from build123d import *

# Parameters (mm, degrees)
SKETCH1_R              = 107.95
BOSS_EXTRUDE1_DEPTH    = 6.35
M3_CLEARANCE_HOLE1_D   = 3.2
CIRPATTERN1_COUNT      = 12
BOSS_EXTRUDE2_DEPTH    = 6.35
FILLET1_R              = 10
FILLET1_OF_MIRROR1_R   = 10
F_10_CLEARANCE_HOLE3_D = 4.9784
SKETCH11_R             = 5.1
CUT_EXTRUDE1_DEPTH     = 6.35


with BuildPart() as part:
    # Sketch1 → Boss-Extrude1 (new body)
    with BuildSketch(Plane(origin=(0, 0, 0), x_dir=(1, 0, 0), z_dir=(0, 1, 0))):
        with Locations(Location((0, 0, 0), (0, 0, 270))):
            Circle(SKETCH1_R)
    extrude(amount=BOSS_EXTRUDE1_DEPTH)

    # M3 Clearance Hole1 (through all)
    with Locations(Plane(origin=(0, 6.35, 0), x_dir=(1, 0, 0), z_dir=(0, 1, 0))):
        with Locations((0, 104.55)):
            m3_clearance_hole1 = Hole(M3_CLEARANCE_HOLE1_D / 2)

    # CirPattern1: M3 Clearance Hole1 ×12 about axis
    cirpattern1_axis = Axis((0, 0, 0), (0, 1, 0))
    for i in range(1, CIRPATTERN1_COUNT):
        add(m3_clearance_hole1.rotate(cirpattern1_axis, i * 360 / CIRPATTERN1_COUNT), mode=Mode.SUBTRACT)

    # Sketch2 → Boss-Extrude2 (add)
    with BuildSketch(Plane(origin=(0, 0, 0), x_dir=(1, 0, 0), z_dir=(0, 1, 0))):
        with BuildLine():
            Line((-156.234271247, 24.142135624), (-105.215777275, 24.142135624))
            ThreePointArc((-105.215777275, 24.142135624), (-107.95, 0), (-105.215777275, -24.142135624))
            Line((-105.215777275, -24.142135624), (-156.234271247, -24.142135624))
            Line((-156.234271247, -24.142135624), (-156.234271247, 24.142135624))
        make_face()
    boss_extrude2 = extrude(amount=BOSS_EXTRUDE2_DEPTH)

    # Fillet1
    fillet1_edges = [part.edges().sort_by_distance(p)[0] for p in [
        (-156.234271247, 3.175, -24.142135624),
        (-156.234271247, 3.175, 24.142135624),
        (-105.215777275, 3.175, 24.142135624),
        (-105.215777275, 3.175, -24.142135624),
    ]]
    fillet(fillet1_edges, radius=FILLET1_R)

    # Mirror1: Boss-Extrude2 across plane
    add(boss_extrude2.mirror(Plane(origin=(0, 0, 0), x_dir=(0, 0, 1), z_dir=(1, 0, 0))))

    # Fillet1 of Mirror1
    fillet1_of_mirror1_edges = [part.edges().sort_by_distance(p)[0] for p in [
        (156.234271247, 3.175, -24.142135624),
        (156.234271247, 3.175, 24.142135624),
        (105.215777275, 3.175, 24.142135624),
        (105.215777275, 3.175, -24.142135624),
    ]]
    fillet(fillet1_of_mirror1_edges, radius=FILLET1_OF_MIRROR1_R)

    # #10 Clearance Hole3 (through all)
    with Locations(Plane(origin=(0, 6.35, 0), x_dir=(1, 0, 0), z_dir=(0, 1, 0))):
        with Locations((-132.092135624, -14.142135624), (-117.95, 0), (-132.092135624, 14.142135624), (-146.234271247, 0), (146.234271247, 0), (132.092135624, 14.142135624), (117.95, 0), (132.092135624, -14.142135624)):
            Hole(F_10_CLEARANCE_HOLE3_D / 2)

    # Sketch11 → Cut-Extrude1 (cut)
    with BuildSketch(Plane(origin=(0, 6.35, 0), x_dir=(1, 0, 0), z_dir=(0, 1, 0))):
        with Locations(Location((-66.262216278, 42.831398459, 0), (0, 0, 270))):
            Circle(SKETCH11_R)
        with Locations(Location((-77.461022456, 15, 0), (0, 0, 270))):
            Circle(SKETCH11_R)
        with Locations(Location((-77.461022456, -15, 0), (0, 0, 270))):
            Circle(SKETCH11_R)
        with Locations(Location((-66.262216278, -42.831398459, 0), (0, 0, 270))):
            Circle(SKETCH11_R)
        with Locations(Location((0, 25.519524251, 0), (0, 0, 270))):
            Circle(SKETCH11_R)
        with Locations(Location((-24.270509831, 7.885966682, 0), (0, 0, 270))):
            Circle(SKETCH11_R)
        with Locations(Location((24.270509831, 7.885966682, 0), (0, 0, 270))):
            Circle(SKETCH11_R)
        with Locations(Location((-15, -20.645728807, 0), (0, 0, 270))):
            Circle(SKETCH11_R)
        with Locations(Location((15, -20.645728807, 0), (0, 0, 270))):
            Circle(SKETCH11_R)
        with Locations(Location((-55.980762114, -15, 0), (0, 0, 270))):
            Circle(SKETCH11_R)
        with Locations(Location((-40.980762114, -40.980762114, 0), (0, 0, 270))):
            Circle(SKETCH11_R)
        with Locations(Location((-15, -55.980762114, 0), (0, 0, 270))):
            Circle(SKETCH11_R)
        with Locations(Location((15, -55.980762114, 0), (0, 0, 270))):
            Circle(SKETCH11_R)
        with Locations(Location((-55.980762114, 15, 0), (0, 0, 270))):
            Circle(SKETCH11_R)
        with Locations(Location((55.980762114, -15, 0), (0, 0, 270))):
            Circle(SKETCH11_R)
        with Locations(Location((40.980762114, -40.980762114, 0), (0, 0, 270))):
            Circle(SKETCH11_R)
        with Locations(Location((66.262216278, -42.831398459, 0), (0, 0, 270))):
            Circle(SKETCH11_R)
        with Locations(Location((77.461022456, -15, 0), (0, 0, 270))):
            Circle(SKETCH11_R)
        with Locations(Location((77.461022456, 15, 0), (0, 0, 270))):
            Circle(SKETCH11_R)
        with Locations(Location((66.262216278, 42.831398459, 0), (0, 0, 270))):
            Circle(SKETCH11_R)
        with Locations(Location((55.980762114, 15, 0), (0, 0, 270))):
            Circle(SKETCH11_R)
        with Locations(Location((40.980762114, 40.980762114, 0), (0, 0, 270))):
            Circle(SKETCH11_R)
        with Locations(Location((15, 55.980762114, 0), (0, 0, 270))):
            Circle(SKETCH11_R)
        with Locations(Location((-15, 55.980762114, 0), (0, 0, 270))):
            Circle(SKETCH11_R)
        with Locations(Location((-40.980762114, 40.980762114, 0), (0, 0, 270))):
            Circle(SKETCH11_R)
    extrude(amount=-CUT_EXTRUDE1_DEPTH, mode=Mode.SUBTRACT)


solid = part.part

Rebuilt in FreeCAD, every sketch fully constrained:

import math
import FreeCAD as App
import Part
import Sketcher

V = App.Vector


def edges_at(feature, points):
    """Names of the edges that pass closest to the given points."""
    edges = feature.Shape.Edges
    near = lambda p: min(range(len(edges)), key=lambda i: edges[i].distToShape(Part.Vertex(*p))[0])
    return sorted({f"Edge{near(p) + 1}" for p in points})

doc = App.newDocument("Part")
body = doc.addObject("PartDesign::Body", "Body")

# Sketch on XZ plane
sketch1 = doc.addObject("Sketcher::SketchObject", "Sketch")
body.addObject(sketch1)
sketch1.AttachmentSupport = (doc.XZ_Plane, [""])
sketch1.MapMode = "FlatFace"
sketch1.addGeometry(Part.Circle(V(0, 0, 0), V(0, 0, 1), 108), False)
sketch1.addConstraint(Sketcher.Constraint("Coincident", 0, 3, -1, 1))
sketch1.addConstraint(Sketcher.Constraint("Diameter", 0, 215.9))
pad1 = doc.addObject("PartDesign::Pad", "Pad")
body.addObject(pad1)
pad1.Profile = sketch1
pad1.Length = 6.35
pad1.Reversed = True

# Sketch on XZ plane
sketch2 = doc.addObject("Sketcher::SketchObject", "Sketch001")
body.addObject(sketch2)
sketch2.AttachmentSupport = (doc.XZ_Plane, [""])
sketch2.MapMode = "FlatFace"
sketch2.AttachmentOffset = App.Placement(V(0, 0, -6.35), App.Rotation())
sketch2.addGeometry(Part.Circle(V(0, -104.5, 0), V(0, 0, 1), 1.6), False)
sketch2.addConstraint(Sketcher.Constraint("PointOnObject", 0, 3, -2))
sketch2.addConstraint(Sketcher.Constraint("Diameter", 0, 3.2))
sketch2.addConstraint(Sketcher.Constraint("DistanceY", 0, 3, -1, 1, 104.55))
doc.recompute()
hole = doc.addObject("PartDesign::Hole", "Hole")
body.addObject(hole)
hole.Profile = sketch2
hole.ThreadType = "None"
hole.Diameter = 3.2
hole.DepthType = "ThroughAll"
hole.Reversed = True
doc.recompute()

polarpattern = doc.addObject("PartDesign::PolarPattern", "PolarPattern")
body.addObject(polarpattern)
polarpattern.Originals = [hole]
polarpattern.Axis = (doc.Y_Axis, [""])
polarpattern.Angle = 360
polarpattern.Occurrences = 12
body.Tip = polarpattern

# Sketch on XZ plane
sketch3 = doc.addObject("Sketcher::SketchObject", "Sketch002")
body.addObject(sketch3)
sketch3.AttachmentSupport = (doc.XZ_Plane, [""])
sketch3.MapMode = "FlatFace"
sketch3.addGeometry(Part.LineSegment(V(-105, -24, 0), V(-156, -24, 0)), False)
sketch3.addGeometry(Part.LineSegment(V(-156, -24, 0), V(-156, 24, 0)), False)
sketch3.addGeometry(Part.LineSegment(V(-156, 24, 0), V(-105, 24, 0)), False)
sketch3.addGeometry(Part.ArcOfCircle(Part.Circle(V(0, 0, 0), V(0, 0, 1), 108), math.radians(167), math.radians(193)), False)
sketch3.addConstraint(Sketcher.Constraint("Coincident", 0, 2, 1, 1))
sketch3.addConstraint(Sketcher.Constraint("Coincident", 1, 2, 2, 1))
sketch3.addConstraint(Sketcher.Constraint("Coincident", 2, 2, 3, 1))
sketch3.addConstraint(Sketcher.Constraint("Coincident", 3, 2, 0, 1))
sketch3.addConstraint(Sketcher.Constraint("Horizontal", 0))
sketch3.addConstraint(Sketcher.Constraint("Vertical", 1))
sketch3.addConstraint(Sketcher.Constraint("Horizontal", 2))
sketch3.addConstraint(Sketcher.Constraint("Coincident", 3, 3, -1, 1))
sketch3.addConstraint(Sketcher.Constraint("Vertical", 2, 2, 3, 2))
sketch3.addConstraint(Sketcher.Constraint("Radius", 3, 107.95))
sketch3.addConstraint(Sketcher.Constraint("DistanceY", 1, 1, 1, 2, 48.284271))
sketch3.addConstraint(Sketcher.Constraint("DistanceX", 0, 2, 0, 1, 51.018494))
pad2 = doc.addObject("PartDesign::Pad", "Pad001")
body.addObject(pad2)
pad2.Profile = sketch3
pad2.Length = 6.35
pad2.Reversed = True
doc.recompute()

fillet = doc.addObject("PartDesign::Fillet", "Fillet")
body.addObject(fillet)
fillet.Base = (pad2, edges_at(pad2, [
    (-156.234, 3.175, -24.142),
    (-156.234, 3.175, 24.142),
    (-105.216, 3.175, 24.142),
    (-105.216, 3.175, -24.142),
]))
fillet.Radius = 10
doc.recompute()

mirrored = doc.addObject("PartDesign::Mirrored", "Mirrored")
body.addObject(mirrored)
mirrored.Originals = [pad2]
mirrored.MirrorPlane = (doc.YZ_Plane, [""])
body.Tip = mirrored
doc.recompute()

fillet2 = doc.addObject("PartDesign::Fillet", "Fillet001")
body.addObject(fillet2)
fillet2.Base = (mirrored, edges_at(mirrored, [
    (156.234, 3.175, -24.142),
    (156.234, 3.175, 24.142),
    (105.216, 3.175, 24.142),
    (105.216, 3.175, -24.142),
]))
fillet2.Radius = 10

# Sketch on XZ plane
sketch4 = doc.addObject("Sketcher::SketchObject", "Sketch003")
body.addObject(sketch4)
sketch4.AttachmentSupport = (doc.XZ_Plane, [""])
sketch4.MapMode = "FlatFace"
sketch4.AttachmentOffset = App.Placement(V(0, 0, -6.35), App.Rotation())
sketch4.addGeometry(Part.Circle(V(-132.1, 14.1, 0), V(0, 0, 1), 2.5), False)
sketch4.addGeometry(Part.Circle(V(-118, 0, 0), V(0, 0, 1), 2.5), False)
sketch4.addGeometry(Part.Circle(V(-132.1, -14.1, 0), V(0, 0, 1), 2.5), False)
sketch4.addGeometry(Part.Circle(V(-146.2, 0, 0), V(0, 0, 1), 2.5), False)
sketch4.addGeometry(Part.Circle(V(146.2, 0, 0), V(0, 0, 1), 2.5), False)
sketch4.addGeometry(Part.Circle(V(132.1, -14.1, 0), V(0, 0, 1), 2.5), False)
sketch4.addGeometry(Part.Circle(V(118, 0, 0), V(0, 0, 1), 2.5), False)
sketch4.addGeometry(Part.Circle(V(132.1, 14.1, 0), V(0, 0, 1), 2.5), False)
sketch4.addConstraint(Sketcher.Constraint("Equal", 0, 1))
sketch4.addConstraint(Sketcher.Constraint("Equal", 1, 2))
sketch4.addConstraint(Sketcher.Constraint("Equal", 2, 3))
sketch4.addConstraint(Sketcher.Constraint("Equal", 3, 4))
sketch4.addConstraint(Sketcher.Constraint("Equal", 4, 5))
sketch4.addConstraint(Sketcher.Constraint("Equal", 5, 6))
sketch4.addConstraint(Sketcher.Constraint("Equal", 6, 7))
sketch4.addConstraint(Sketcher.Constraint("Symmetric", 3, 3, 4, 3, -1, 1))
sketch4.addConstraint(Sketcher.Constraint("Symmetric", 0, 3, 5, 3, -1, 1))
sketch4.addConstraint(Sketcher.Constraint("Symmetric", 1, 3, 6, 3, -1, 1))
sketch4.addConstraint(Sketcher.Constraint("Symmetric", 2, 3, 7, 3, -1, 1))
sketch4.addConstraint(Sketcher.Constraint("Symmetric", 2, 3, 5, 3, -2))
sketch4.addConstraint(Sketcher.Constraint("PointOnObject", 1, 3, -1))
sketch4.addConstraint(Sketcher.Constraint("PointOnObject", 3, 3, -1))
sketch4.addConstraint(Sketcher.Constraint("Diameter", 0, 4.9784))
sketch4.addConstraint(Sketcher.Constraint("DistanceX", 1, 3, 6, 3, 235.9))
sketch4.addConstraint(Sketcher.Constraint("DistanceX", 3, 3, -1, 1, 146.234271))
sketch4.addConstraint(Sketcher.Constraint("DistanceY", 2, 3, 0, 3, 28.284271))
sketch4.addConstraint(Sketcher.Constraint("DistanceX", 2, 3, 5, 3, 264.184271))
doc.recompute()
hole2 = doc.addObject("PartDesign::Hole", "Hole001")
body.addObject(hole2)
hole2.Profile = sketch4
hole2.ThreadType = "None"
hole2.Diameter = 4.9784
hole2.DepthType = "ThroughAll"
hole2.Reversed = True

# Sketch on XZ plane
sketch5 = doc.addObject("Sketcher::SketchObject", "Sketch004")
body.addObject(sketch5)
sketch5.AttachmentSupport = (doc.XZ_Plane, [""])
sketch5.MapMode = "FlatFace"
sketch5.AttachmentOffset = App.Placement(V(0, 0, -6.35), App.Rotation())
sketch5.addGeometry(Part.Circle(V(-66, -43, 0), V(0, 0, 1), 5), False)
sketch5.addGeometry(Part.Circle(V(-77, -15, 0), V(0, 0, 1), 5), False)
sketch5.addGeometry(Part.Circle(V(-77, 15, 0), V(0, 0, 1), 5), False)
sketch5.addGeometry(Part.Circle(V(-66, 43, 0), V(0, 0, 1), 5), False)
sketch5.addGeometry(Part.Circle(V(0, -26, 0), V(0, 0, 1), 5), False)
sketch5.addGeometry(Part.Circle(V(-24, -8, 0), V(0, 0, 1), 5), False)
sketch5.addGeometry(Part.Circle(V(24, -8, 0), V(0, 0, 1), 5), False)
sketch5.addGeometry(Part.Circle(V(-15, 21, 0), V(0, 0, 1), 5), False)
sketch5.addGeometry(Part.Circle(V(15, 21, 0), V(0, 0, 1), 5), False)
sketch5.addGeometry(Part.Circle(V(-56, 15, 0), V(0, 0, 1), 5), False)
sketch5.addGeometry(Part.Circle(V(-41, 41, 0), V(0, 0, 1), 5), False)
sketch5.addGeometry(Part.Circle(V(-15, 56, 0), V(0, 0, 1), 5), False)
sketch5.addGeometry(Part.Circle(V(15, 56, 0), V(0, 0, 1), 5), False)
sketch5.addGeometry(Part.Circle(V(-56, -15, 0), V(0, 0, 1), 5), False)
sketch5.addGeometry(Part.Circle(V(56, 15, 0), V(0, 0, 1), 5), False)
sketch5.addGeometry(Part.Circle(V(41, 41, 0), V(0, 0, 1), 5), False)
sketch5.addGeometry(Part.Circle(V(66, 43, 0), V(0, 0, 1), 5), False)
sketch5.addGeometry(Part.Circle(V(77, 15, 0), V(0, 0, 1), 5), False)
sketch5.addGeometry(Part.Circle(V(77, -15, 0), V(0, 0, 1), 5), False)
sketch5.addGeometry(Part.Circle(V(66, -43, 0), V(0, 0, 1), 5), False)
sketch5.addGeometry(Part.Circle(V(56, -15, 0), V(0, 0, 1), 5), False)
sketch5.addGeometry(Part.Circle(V(41, -41, 0), V(0, 0, 1), 5), False)
sketch5.addGeometry(Part.Circle(V(15, -56, 0), V(0, 0, 1), 5), False)
sketch5.addGeometry(Part.Circle(V(-15, -56, 0), V(0, 0, 1), 5), False)
sketch5.addGeometry(Part.Circle(V(-41, -41, 0), V(0, 0, 1), 5), False)
sketch5.addConstraint(Sketcher.Constraint("Equal", 0, 1))
sketch5.addConstraint(Sketcher.Constraint("Equal", 1, 2))
sketch5.addConstraint(Sketcher.Constraint("Equal", 2, 3))
sketch5.addConstraint(Sketcher.Constraint("Equal", 3, 4))
sketch5.addConstraint(Sketcher.Constraint("Equal", 4, 5))
sketch5.addConstraint(Sketcher.Constraint("Equal", 5, 6))
sketch5.addConstraint(Sketcher.Constraint("Equal", 6, 7))
sketch5.addConstraint(Sketcher.Constraint("Equal", 7, 8))
sketch5.addConstraint(Sketcher.Constraint("Equal", 8, 9))
sketch5.addConstraint(Sketcher.Constraint("Equal", 9, 10))
sketch5.addConstraint(Sketcher.Constraint("Equal", 10, 11))
sketch5.addConstraint(Sketcher.Constraint("Equal", 11, 12))
sketch5.addConstraint(Sketcher.Constraint("Equal", 12, 13))
sketch5.addConstraint(Sketcher.Constraint("Equal", 13, 14))
sketch5.addConstraint(Sketcher.Constraint("Equal", 14, 15))
sketch5.addConstraint(Sketcher.Constraint("Equal", 15, 16))
sketch5.addConstraint(Sketcher.Constraint("Equal", 16, 17))
sketch5.addConstraint(Sketcher.Constraint("Equal", 17, 18))
sketch5.addConstraint(Sketcher.Constraint("Equal", 18, 19))
sketch5.addConstraint(Sketcher.Constraint("Equal", 19, 20))
sketch5.addConstraint(Sketcher.Constraint("Equal", 20, 21))
sketch5.addConstraint(Sketcher.Constraint("Equal", 21, 22))
sketch5.addConstraint(Sketcher.Constraint("Equal", 22, 23))
sketch5.addConstraint(Sketcher.Constraint("Equal", 23, 24))
sketch5.addConstraint(Sketcher.Constraint("Symmetric", 13, 3, 14, 3, -1, 1))
sketch5.addConstraint(Sketcher.Constraint("Symmetric", 0, 3, 16, 3, -1, 1))
sketch5.addConstraint(Sketcher.Constraint("Symmetric", 1, 3, 17, 3, -1, 1))
sketch5.addConstraint(Sketcher.Constraint("Symmetric", 2, 3, 18, 3, -1, 1))
sketch5.addConstraint(Sketcher.Constraint("Symmetric", 3, 3, 19, 3, -1, 1))
sketch5.addConstraint(Sketcher.Constraint("Symmetric", 9, 3, 20, 3, -1, 1))
sketch5.addConstraint(Sketcher.Constraint("Symmetric", 10, 3, 21, 3, -1, 1))
sketch5.addConstraint(Sketcher.Constraint("Symmetric", 11, 3, 22, 3, -1, 1))
sketch5.addConstraint(Sketcher.Constraint("Symmetric", 12, 3, 23, 3, -1, 1))
sketch5.addConstraint(Sketcher.Constraint("Symmetric", 15, 3, 24, 3, -1, 1))
sketch5.addConstraint(Sketcher.Constraint("Symmetric", 5, 3, 6, 3, -2))
sketch5.addConstraint(Sketcher.Constraint("Symmetric", 7, 3, 8, 3, -2))
sketch5.addConstraint(Sketcher.Constraint("Symmetric", 11, 3, 12, 3, -2))
sketch5.addConstraint(Sketcher.Constraint("Symmetric", 9, 3, 14, 3, -2))
sketch5.addConstraint(Sketcher.Constraint("Symmetric", 10, 3, 15, 3, -2))
sketch5.addConstraint(Sketcher.Constraint("Symmetric", 3, 3, 16, 3, -2))
sketch5.addConstraint(Sketcher.Constraint("Symmetric", 2, 3, 17, 3, -2))
sketch5.addConstraint(Sketcher.Constraint("PointOnObject", 4, 3, -2))
sketch5.addConstraint(Sketcher.Constraint("Horizontal", 2, 3, 9, 3))
sketch5.addConstraint(Sketcher.Constraint("Vertical", 7, 3, 11, 3))
sketch5.addConstraint(Sketcher.Constraint("Diameter", 0, 10.2))
sketch5.addConstraint(Sketcher.Constraint("DistanceY", 1, 3, -1, 1, 15.0))
sketch5.addConstraint(Sketcher.Constraint("DistanceX", 7, 3, -1, 1, 15.0))
sketch5.addConstraint(Sketcher.Constraint("DistanceX", 9, 3, 10, 3, 15.0))
sketch5.addConstraint(Sketcher.Constraint("DistanceY", 10, 3, 11, 3, 15.0))
sketch5.addConstraint(Sketcher.Constraint("DistanceY", 0, 3, -1, 1, 42.831398))
sketch5.addConstraint(Sketcher.Constraint("DistanceX", 5, 3, -1, 1, 24.27051))
sketch5.addConstraint(Sketcher.Constraint("DistanceY", -1, 1, 7, 3, 20.645729))
sketch5.addConstraint(Sketcher.Constraint("DistanceY", 0, 3, 5, 3, 34.945432))
sketch5.addConstraint(Sketcher.Constraint("DistanceX", 2, 3, 9, 3, 21.48026))
sketch5.addConstraint(Sketcher.Constraint("DistanceY", 5, 3, 10, 3, 48.866729))
sketch5.addConstraint(Sketcher.Constraint("DistanceX", 0, 3, -1, 1, 66.262216))
sketch5.addConstraint(Sketcher.Constraint("DistanceX", 1, 3, -1, 1, 77.461022))
sketch5.addConstraint(Sketcher.Constraint("DistanceY", 4, 3, -1, 1, 25.519524))
pocket1 = doc.addObject("PartDesign::Pocket", "Pocket")
body.addObject(pocket1)
pocket1.Profile = sketch5
pocket1.Length = 6.35
pocket1.Reversed = True

doc.recompute()
